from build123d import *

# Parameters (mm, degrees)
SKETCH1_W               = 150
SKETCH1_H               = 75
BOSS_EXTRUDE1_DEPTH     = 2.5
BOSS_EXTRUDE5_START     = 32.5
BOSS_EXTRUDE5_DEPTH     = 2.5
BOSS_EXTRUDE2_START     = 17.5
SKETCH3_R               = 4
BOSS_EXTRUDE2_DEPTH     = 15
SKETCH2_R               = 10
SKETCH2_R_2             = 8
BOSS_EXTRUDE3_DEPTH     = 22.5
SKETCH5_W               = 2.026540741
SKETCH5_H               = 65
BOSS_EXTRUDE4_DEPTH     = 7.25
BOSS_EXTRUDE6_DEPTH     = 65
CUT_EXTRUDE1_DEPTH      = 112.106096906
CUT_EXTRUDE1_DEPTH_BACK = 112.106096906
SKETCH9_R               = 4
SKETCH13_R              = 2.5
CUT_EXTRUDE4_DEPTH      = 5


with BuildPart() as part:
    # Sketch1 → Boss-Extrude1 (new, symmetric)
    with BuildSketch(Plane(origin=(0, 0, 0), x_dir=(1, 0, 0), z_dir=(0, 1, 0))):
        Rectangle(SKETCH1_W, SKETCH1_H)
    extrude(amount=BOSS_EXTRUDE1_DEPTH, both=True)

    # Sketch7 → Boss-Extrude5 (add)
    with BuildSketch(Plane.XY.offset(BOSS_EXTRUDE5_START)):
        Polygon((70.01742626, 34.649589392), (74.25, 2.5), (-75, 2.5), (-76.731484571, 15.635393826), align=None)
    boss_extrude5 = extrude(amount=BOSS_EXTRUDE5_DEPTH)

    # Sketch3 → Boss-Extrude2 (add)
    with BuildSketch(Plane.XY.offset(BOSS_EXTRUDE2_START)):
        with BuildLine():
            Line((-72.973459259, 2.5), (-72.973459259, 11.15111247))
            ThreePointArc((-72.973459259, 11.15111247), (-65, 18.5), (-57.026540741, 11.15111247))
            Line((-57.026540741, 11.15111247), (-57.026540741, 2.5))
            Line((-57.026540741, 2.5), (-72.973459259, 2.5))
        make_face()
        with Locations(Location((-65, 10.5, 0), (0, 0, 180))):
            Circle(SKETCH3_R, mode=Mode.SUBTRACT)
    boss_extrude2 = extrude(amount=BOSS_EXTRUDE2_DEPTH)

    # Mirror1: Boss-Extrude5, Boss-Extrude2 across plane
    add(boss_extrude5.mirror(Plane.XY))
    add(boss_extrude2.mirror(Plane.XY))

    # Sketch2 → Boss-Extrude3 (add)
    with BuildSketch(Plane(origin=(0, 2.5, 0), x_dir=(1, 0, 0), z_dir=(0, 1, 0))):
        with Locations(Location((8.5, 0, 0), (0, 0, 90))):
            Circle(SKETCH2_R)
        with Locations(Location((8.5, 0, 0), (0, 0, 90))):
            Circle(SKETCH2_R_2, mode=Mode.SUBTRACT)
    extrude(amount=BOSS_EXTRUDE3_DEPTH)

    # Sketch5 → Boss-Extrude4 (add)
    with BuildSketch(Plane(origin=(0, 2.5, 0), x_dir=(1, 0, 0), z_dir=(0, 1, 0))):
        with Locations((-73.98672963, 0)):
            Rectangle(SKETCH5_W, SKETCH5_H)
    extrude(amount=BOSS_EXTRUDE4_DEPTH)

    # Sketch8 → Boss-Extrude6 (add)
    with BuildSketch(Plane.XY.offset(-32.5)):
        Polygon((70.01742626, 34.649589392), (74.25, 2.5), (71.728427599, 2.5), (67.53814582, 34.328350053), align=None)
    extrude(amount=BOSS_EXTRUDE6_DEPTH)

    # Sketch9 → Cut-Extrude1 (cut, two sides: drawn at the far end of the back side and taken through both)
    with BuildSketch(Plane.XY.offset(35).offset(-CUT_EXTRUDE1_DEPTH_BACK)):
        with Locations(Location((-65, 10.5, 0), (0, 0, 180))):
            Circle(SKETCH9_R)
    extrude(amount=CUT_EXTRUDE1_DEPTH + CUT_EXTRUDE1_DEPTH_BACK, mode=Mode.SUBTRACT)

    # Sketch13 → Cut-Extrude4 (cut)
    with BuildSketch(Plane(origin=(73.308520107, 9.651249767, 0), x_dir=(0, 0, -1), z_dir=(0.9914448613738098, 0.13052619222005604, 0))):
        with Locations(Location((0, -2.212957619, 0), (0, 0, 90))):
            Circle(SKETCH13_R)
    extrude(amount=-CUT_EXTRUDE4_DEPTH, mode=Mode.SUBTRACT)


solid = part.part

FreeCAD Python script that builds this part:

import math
import FreeCAD as App
import Part
import Sketcher
from FreeCAD import Vector
Q = App.Units.Quantity


def add_polygon(sketch, points):
    """Adds a closed chain of lines whose ends are joined by coincident constraints."""
    first, n = sketch.GeometryCount, len(points)
    for a, b in zip(points, points[1:] + points[:1]):
        sketch.addGeometry(Part.LineSegment(App.Vector(*a, 0), App.Vector(*b, 0)), False)
    for i in range(n):
        sketch.addConstraint(Sketcher.Constraint("Coincident", first + i, 2, first + (i + 1) % n, 1))

doc = App.newDocument("Part")
body = doc.addObject("PartDesign::Body", "Body")

# Sketch on XZ plane
sketch1 = body.newObject("Sketcher::SketchObject", "Sketch")
sketch1.AttachmentSupport = (doc.getObject("XZ_Plane"), [""])
sketch1.MapMode = "FlatFace"
add_polygon(sketch1, [(-75, -37.5), (-75, 37.5), (75, 37.5), (75, -37.5)])  # lines 0-3
sketch1.addConstraint([
    Sketcher.Constraint("Vertical", 0),
    Sketcher.Constraint("Horizontal", 1),
    Sketcher.Constraint("Vertical", 2),
    Sketcher.Constraint("Horizontal", 3),
    Sketcher.Constraint("Symmetric", 0, 2, 2, 2, -1, 1),
    Sketcher.Constraint("DistanceX", 1, 1, 1, 2, 150.0),
    Sketcher.Constraint("DistanceY", 0, 1, 0, 2, 75.0),
])
pad1 = body.newObject("PartDesign::Pad", "Pad")
pad1.Profile = sketch1
pad1.Length = 5
pad1.Midplane = True

# Sketch on XY plane
sketch2 = body.newObject("Sketcher::SketchObject", "Sketch001")
sketch2.AttachmentSupport = (doc.getObject("XY_Plane"), [""])
sketch2.MapMode = "FlatFace"
sketch2.AttachmentOffset = App.Placement(Vector(0, 0, 32.5), App.Rotation())
add_polygon(sketch2, [(74.25, 2.5), (70.017426, 34.649589), (-76.731485, 15.635394), (-75, 2.5)])  # lines 0-3
sketch2.addConstraint([
    Sketcher.Constraint("Horizontal", 3),
    Sketcher.Constraint("DistanceX", 2, 2, -1, 1, 75.0),
    Sketcher.Constraint("Angle", 0, Q("97.5 deg")),
    Sketcher.Constraint("DistanceX", 3, 1, 3, 2, 149.25),
    Sketcher.Constraint("DistanceY", -1, 1, 2, 2, 2.5),
    Sketcher.Constraint("DistanceY", -1, 1, 0, 2, 34.649589),
    Sketcher.Constraint("DistanceX", 1, 2, 0, 2, 146.748911),
    Sketcher.Constraint("Distance", 1, 147.975614),
])
pad2 = body.newObject("PartDesign::Pad", "Pad001")
pad2.Profile = sketch2
pad2.Length = 2.5

# Sketch on XY plane
sketch3 = body.newObject("Sketcher::SketchObject", "Sketch002")
sketch3.AttachmentSupport = (doc.getObject("XY_Plane"), [""])
sketch3.MapMode = "FlatFace"
sketch3.AttachmentOffset = App.Placement(Vector(0, 0, 17.5), App.Rotation())
sketch3.addGeometry([
    Part.LineSegment(Vector(-72.973459, 11.151112, 0), Vector(-72.973459, 2.5, 0)),  # 0
    Part.LineSegment(Vector(-72.973459, 2.5, 0), Vector(-57.026541, 2.5, 0)),  # 1
    Part.LineSegment(Vector(-57.026541, 2.5, 0), Vector(-57.026541, 11.151112, 0)),  # 2
    Part.ArcOfCircle(Part.Circle(Vector(-65, 10.5, 0), Vector(0, 0, 1), 8), math.radians(4.668413), math.radians(175.331587)),  # 3
    Part.Circle(Vector(-65, 10.5, 0), Vector(0, 0, 1), 4),  # 4
], False)
sketch3.addConstraint([
    Sketcher.Constraint("Coincident", 0, 2, 1, 1),
    Sketcher.Constraint("Coincident", 1, 2, 2, 1),
    Sketcher.Constraint("Coincident", 2, 2, 3, 1),
    Sketcher.Constraint("Coincident", 3, 2, 0, 1),
    Sketcher.Constraint("Vertical", 0),
    Sketcher.Constraint("Horizontal", 1),
    Sketcher.Constraint("Vertical", 2),
    Sketcher.Constraint("Coincident", 4, 3, 3, 3),
    Sketcher.Constraint("Horizontal", 2, 2, 3, 2),
    Sketcher.Constraint("Diameter", 4, 8.0),
    Sketcher.Constraint("Radius", 3, 8.0),
    Sketcher.Constraint("DistanceX", 3, 3, -1, 1, 65.0),
    Sketcher.Constraint("DistanceY", 0, 2, 3, 3, 8.0),
    Sketcher.Constraint("DistanceY", -1, 1, 3, 3, 10.5),
    Sketcher.Constraint("DistanceX", 1, 1, 1, 2, 15.946919),
])
pad3 = body.newObject("PartDesign::Pad", "Pad002")
pad3.Profile = sketch3
pad3.Length = 15
doc.recompute()

mirrored = body.newObject("PartDesign::Mirrored", "Mirrored")
mirrored.Originals = [pad2, pad3]
mirrored.MirrorPlane = (doc.getObject("XY_Plane"), [""])
body.Tip = mirrored

# Sketch on XZ plane
sketch4 = body.newObject("Sketcher::SketchObject", "Sketch003")
sketch4.AttachmentSupport = (doc.getObject("XZ_Plane"), [""])
sketch4.MapMode = "FlatFace"
sketch4.AttachmentOffset = App.Placement(Vector(0, 0, -2.5), App.Rotation())
sketch4.addGeometry([
    Part.Circle(Vector(8.5, 0, 0), Vector(0, 0, 1), 10),
    Part.Circle(Vector(8.5, 0, 0), Vector(0, 0, 1), 8),
], False)
sketch4.addConstraint([
    Sketcher.Constraint("Coincident", 1, 3, 0, 3),
    Sketcher.Constraint("PointOnObject", 0, 3, -1),
    Sketcher.Constraint("Diameter", 0, 20.0),
    Sketcher.Constraint("Diameter", 1, 16.0),
    Sketcher.Constraint("DistanceX", -1, 1, 0, 3, 8.5),
])
pad4 = body.newObject("PartDesign::Pad", "Pad003")
pad4.Profile = sketch4
pad4.Length = 22.5
pad4.Reversed = True

# Sketch on XZ plane
sketch5 = body.newObject("Sketcher::SketchObject", "Sketch004")
sketch5.AttachmentSupport = (doc.getObject("XZ_Plane"), [""])
sketch5.MapMode = "FlatFace"
sketch5.AttachmentOffset = App.Placement(Vector(0, 0, -2.5), App.Rotation())
add_polygon(sketch5, [(-75, -32.5), (-75, 32.5), (-72.973459, 32.5), (-72.973459, -32.5)])  # lines 0-3
sketch5.addConstraint([
    Sketcher.Constraint("Vertical", 0),
    Sketcher.Constraint("Horizontal", 1),
    Sketcher.Constraint("Vertical", 2),
    Sketcher.Constraint("Horizontal", 3),
    Sketcher.Constraint("DistanceY", 0, 1, 0, 2, 65.0),
    Sketcher.Constraint("DistanceX", 0, 2, -1, 1, 75.0),
    Sketcher.Constraint("DistanceY", -1, 1, 0, 2, 32.5),
    Sketcher.Constraint("DistanceX", 1, 1, 1, 2, 2.026541),
])
pad5 = body.newObject("PartDesign::Pad", "Pad004")
pad5.Profile = sketch5
pad5.Length = 7.25
pad5.Reversed = True

# Sketch on XY plane
sketch6 = body.newObject("Sketcher::SketchObject", "Sketch005")
sketch6.AttachmentSupport = (doc.getObject("XY_Plane"), [""])
sketch6.MapMode = "FlatFace"
sketch6.AttachmentOffset = App.Placement(Vector(0, 0, -32.5), App.Rotation())
add_polygon(sketch6, [(74.25, 2.5), (70.017426, 34.649589), (67.538146, 34.32835), (71.728428, 2.5)])  # lines 0-3
sketch6.addConstraint([
    Sketcher.Constraint("Horizontal", 3),
    Sketcher.Constraint("Parallel", 0, 2),
    Sketcher.Constraint("Angle", 0, Q("97.5 deg")),
    Sketcher.Constraint("DistanceY", -1, 1, 2, 2, 2.5),
    Sketcher.Constraint("DistanceX", -1, 1, 3, 2, 74.25),
    Sketcher.Constraint("DistanceX", 0, 2, 2, 2, 1.711001),
    Sketcher.Constraint("DistanceX", 3, 1, 3, 2, 2.521572),
    Sketcher.Constraint("DistanceY", -1, 1, 1, 2, 34.32835),
])
pad6 = body.newObject("PartDesign::Pad", "Pad005")
pad6.Profile = sketch6
pad6.Length = 65

# Sketch on XY plane
sketch7 = body.newObject("Sketcher::SketchObject", "Sketch006")
sketch7.AttachmentSupport = (doc.getObject("XY_Plane"), [""])
sketch7.MapMode = "FlatFace"
sketch7.AttachmentOffset = App.Placement(Vector(0, 0, 35), App.Rotation())
sketch7.addGeometry(Part.Circle(Vector(-65, 10.5, 0), Vector(0, 0, 1), 4), False)
sketch7.addConstraint([
    Sketcher.Constraint("Diameter", 0, 8.0),
    Sketcher.Constraint("DistanceX", 0, 3, -1, 1, 65.0),
    Sketcher.Constraint("DistanceY", -1, 1, 0, 3, 10.5),
])
pocket1 = body.newObject("PartDesign::Pocket", "Pocket")
pocket1.Profile = sketch7
pocket1.Type = "ThroughAll"
pocket1.Midplane = True

# Sketch on an angled plane
sketch8 = body.newObject("Sketcher::SketchObject", "Sketch007")
sketch8.Placement = App.Placement(Vector(73.30852, 9.65125, 0), App.Rotation(Vector(0, 0, -1), Vector(-0.130526192, 0.991444861, 0), Vector(0.991444861, 0.130526192, 0), "ZXY"))
sketch8.addGeometry(Part.Circle(Vector(0, -2.212958, 0), Vector(0, 0, 1), 2.5), False)
sketch8.addConstraint([
    Sketcher.Constraint("PointOnObject", 0, 3, -2),
    Sketcher.Constraint("Diameter", 0, 5.0),
    Sketcher.Constraint("DistanceY", 0, 3, -1, 1, 2.212958),
])
pocket2 = body.newObject("PartDesign::Pocket", "Pocket001")
pocket2.Profile = sketch8
pocket2.Length = 5

doc.recompute()
